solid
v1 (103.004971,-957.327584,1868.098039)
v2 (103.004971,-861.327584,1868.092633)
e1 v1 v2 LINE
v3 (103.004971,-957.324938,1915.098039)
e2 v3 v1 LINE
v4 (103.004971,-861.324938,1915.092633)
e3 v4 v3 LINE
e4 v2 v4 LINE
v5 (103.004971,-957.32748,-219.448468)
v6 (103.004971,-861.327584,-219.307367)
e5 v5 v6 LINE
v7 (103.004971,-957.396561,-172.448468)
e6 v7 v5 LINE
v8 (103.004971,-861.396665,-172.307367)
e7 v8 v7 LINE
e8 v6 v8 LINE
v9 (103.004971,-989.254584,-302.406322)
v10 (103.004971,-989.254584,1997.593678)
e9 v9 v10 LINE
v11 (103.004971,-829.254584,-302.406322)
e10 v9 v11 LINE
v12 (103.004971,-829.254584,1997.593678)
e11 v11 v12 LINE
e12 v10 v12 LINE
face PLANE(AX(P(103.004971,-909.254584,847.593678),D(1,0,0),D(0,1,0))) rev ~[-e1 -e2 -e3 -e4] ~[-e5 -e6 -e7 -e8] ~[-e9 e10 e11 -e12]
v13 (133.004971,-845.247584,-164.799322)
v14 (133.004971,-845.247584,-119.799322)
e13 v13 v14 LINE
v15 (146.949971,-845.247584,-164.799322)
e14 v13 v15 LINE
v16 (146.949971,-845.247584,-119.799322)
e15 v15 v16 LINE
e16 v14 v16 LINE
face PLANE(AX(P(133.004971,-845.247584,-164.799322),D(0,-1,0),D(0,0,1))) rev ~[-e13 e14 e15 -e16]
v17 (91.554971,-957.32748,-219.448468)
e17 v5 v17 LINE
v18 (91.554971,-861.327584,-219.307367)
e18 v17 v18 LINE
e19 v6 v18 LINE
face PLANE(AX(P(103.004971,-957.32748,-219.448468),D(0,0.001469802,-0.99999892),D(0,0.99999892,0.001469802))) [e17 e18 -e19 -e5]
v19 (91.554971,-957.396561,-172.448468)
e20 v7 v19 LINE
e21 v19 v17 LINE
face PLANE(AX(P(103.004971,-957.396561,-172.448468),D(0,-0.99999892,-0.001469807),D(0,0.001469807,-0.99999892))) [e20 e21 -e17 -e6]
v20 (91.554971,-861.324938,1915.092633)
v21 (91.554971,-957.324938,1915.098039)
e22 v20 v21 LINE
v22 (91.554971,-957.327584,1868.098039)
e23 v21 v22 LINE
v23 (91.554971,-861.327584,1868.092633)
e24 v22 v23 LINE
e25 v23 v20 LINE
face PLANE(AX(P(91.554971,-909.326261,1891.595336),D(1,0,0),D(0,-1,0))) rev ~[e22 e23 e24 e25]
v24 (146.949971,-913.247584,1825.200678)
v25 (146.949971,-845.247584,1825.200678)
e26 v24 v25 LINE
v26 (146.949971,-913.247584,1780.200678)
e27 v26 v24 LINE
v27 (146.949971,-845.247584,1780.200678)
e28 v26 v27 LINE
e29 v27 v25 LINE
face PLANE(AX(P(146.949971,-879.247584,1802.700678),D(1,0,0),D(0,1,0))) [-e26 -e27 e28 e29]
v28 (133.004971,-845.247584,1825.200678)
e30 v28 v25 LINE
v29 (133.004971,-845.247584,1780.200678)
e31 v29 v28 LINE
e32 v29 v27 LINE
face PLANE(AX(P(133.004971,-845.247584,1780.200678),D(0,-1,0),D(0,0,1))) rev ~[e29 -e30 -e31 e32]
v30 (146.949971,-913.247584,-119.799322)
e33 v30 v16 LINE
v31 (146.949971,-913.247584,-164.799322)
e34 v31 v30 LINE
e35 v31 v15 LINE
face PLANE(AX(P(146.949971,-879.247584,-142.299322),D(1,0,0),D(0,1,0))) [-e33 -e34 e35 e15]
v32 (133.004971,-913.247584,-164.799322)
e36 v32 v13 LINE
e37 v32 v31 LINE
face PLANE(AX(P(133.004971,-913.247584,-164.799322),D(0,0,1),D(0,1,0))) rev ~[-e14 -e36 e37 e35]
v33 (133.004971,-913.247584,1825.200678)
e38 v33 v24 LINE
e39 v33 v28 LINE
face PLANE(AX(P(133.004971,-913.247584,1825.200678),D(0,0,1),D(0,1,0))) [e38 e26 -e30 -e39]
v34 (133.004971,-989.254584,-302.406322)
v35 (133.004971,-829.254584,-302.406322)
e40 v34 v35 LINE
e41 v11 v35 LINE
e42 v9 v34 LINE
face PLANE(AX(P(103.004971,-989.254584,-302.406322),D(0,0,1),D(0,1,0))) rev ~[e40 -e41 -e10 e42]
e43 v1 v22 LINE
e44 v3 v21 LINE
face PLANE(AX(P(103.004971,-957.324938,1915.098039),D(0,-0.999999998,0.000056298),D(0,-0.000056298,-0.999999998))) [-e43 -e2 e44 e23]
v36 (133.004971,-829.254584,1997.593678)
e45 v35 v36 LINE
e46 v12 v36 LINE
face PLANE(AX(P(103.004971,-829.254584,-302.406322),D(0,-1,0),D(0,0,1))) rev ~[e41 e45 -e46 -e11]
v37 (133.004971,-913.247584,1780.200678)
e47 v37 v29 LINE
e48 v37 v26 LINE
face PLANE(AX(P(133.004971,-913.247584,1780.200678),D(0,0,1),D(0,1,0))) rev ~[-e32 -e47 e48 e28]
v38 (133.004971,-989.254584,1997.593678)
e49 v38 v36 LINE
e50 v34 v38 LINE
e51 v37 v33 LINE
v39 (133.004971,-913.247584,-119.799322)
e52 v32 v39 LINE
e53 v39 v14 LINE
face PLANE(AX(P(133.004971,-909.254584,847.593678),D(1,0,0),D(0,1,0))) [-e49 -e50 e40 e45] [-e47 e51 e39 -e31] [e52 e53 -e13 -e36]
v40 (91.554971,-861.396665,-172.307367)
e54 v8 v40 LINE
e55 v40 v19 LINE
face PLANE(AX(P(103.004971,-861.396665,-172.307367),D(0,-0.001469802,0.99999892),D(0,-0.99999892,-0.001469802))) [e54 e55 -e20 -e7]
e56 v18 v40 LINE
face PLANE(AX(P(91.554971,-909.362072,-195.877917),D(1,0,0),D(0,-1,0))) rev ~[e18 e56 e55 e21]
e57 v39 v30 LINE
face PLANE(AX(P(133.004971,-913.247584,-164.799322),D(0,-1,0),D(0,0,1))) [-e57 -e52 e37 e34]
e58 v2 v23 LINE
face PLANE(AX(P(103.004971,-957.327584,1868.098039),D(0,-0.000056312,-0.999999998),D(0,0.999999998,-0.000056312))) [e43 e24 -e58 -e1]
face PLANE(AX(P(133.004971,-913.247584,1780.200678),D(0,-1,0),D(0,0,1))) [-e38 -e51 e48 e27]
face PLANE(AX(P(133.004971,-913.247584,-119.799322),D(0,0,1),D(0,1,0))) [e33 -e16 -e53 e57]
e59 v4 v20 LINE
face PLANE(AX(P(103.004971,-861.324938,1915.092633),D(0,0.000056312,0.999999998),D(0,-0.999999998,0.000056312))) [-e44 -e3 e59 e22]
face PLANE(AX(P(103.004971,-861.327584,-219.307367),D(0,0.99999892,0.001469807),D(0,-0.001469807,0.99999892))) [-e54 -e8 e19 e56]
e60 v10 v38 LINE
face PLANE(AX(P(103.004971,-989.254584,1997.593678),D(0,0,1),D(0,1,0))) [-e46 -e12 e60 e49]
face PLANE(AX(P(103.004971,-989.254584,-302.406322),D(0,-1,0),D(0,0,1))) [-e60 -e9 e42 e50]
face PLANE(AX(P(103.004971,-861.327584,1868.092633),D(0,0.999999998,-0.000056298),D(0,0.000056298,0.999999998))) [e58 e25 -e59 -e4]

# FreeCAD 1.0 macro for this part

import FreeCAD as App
import Part
import Sketcher

V = App.Vector
Q = App.Units.Quantity

doc = App.newDocument("Part")
body = doc.addObject("PartDesign::Body", "Body")

# Sketch on YZ plane
sketch1 = body.newObject("Sketcher::SketchObject", "Sketch")
sketch1.AttachmentSupport = (doc.getObject("YZ_Plane"), [""])
sketch1.MapMode = "FlatFace"
sketch1.addGeometry(Part.LineSegment(V(-991, 1981, 0), V(-991, -319, 0)), False)
sketch1.addGeometry(Part.LineSegment(V(-991, -319, 0), V(-831, -319, 0)), False)
sketch1.addGeometry(Part.LineSegment(V(-831, -319, 0), V(-831, 1981, 0)), False)
sketch1.addGeometry(Part.LineSegment(V(-831, 1981, 0), V(-991, 1981, 0)), False)
sketch1.addConstraint(Sketcher.Constraint("Coincident", 0, 2, 1, 1))
sketch1.addConstraint(Sketcher.Constraint("Coincident", 1, 2, 2, 1))
sketch1.addConstraint(Sketcher.Constraint("Coincident", 2, 2, 3, 1))
sketch1.addConstraint(Sketcher.Constraint("Coincident", 3, 2, 0, 1))
sketch1.addConstraint(Sketcher.Constraint("Vertical", 0))
sketch1.addConstraint(Sketcher.Constraint("Horizontal", 1))
sketch1.addConstraint(Sketcher.Constraint("Vertical", 2))
sketch1.addConstraint(Sketcher.Constraint("Horizontal", 3))
sketch1.addConstraint(Sketcher.Constraint("DistanceX", 1, 1, 1, 2, Q("160 mm")))
sketch1.addConstraint(Sketcher.Constraint("DistanceY", 0, 2, 0, 1, Q("2300 mm")))
sketch1.addConstraint(Sketcher.Constraint("DistanceX", 0, 2, -1, 1, Q("991.017 mm")))
sketch1.addConstraint(Sketcher.Constraint("DistanceY", 0, 2, -1, 1, Q("319.152 mm")))
pad1 = body.newObject("PartDesign::Pad", "Pad")
pad1.Profile = sketch1
pad1.Length = 30

# Sketch on YZ plane
sketch2 = body.newObject("Sketcher::SketchObject", "Sketch001")
sketch2.AttachmentSupport = (doc.getObject("YZ_Plane"), [""])
sketch2.MapMode = "FlatFace"
sketch2.addGeometry(Part.LineSegment(V(-863, -236, 0), V(-959, -236, 0)), False)
sketch2.addGeometry(Part.LineSegment(V(-959, -236, 0), V(-959, -189, 0)), False)
sketch2.addGeometry(Part.LineSegment(V(-959, -189, 0), V(-863, -189, 0)), False)
sketch2.addGeometry(Part.LineSegment(V(-863, -189, 0), V(-863, -236, 0)), False)
sketch2.addGeometry(Part.LineSegment(V(-863, 1851, 0), V(-959, 1851, 0)), False)
sketch2.addGeometry(Part.LineSegment(V(-959, 1851, 0), V(-959, 1898, 0)), False)
sketch2.addGeometry(Part.LineSegment(V(-959, 1898, 0), V(-863, 1898, 0)), False)
sketch2.addGeometry(Part.LineSegment(V(-863, 1898, 0), V(-863, 1851, 0)), False)
sketch2.addConstraint(Sketcher.Constraint("Coincident", 0, 2, 1, 1))
sketch2.addConstraint(Sketcher.Constraint("Coincident", 1, 2, 2, 1))
sketch2.addConstraint(Sketcher.Constraint("Coincident", 2, 2, 3, 1))
sketch2.addConstraint(Sketcher.Constraint("Coincident", 3, 2, 0, 1))
sketch2.addConstraint(Sketcher.Constraint("Coincident", 4, 2, 5, 1))
sketch2.addConstraint(Sketcher.Constraint("Coincident", 5, 2, 6, 1))
sketch2.addConstraint(Sketcher.Constraint("Coincident", 6, 2, 7, 1))
sketch2.addConstraint(Sketcher.Constraint("Coincident", 7, 2, 4, 1))
sketch2.addConstraint(Sketcher.Constraint("Perpendicular", 0, 1))
sketch2.addConstraint(Sketcher.Constraint("Perpendicular", 1, 2))
sketch2.addConstraint(Sketcher.Constraint("Perpendicular", 2, 3))
sketch2.addConstraint(Sketcher.Constraint("Perpendicular", 4, 5))
sketch2.addConstraint(Sketcher.Constraint("Perpendicular", 5, 6))
sketch2.addConstraint(Sketcher.Constraint("Perpendicular", 6, 7))
sketch2.addConstraint(Sketcher.Constraint("Vertical", 3, 2, 7, 2))
sketch2.addConstraint(Sketcher.Constraint("Equal", 2, 4))
sketch2.addConstraint(Sketcher.Constraint("Distance", 0, Q("96 mm")))
sketch2.addConstraint(Sketcher.Constraint("Distance", 5, Q("47 mm")))
sketch2.addConstraint(Sketcher.Constraint("DistanceY", 0, 2, 1, 2, Q("47 mm")))
sketch2.addConstraint(Sketcher.Constraint("DistanceY", 2, 2, 6, 2, Q("2087.4 mm")))
sketch2.addConstraint(Sketcher.Constraint("DistanceX", 3, 2, -1, 1, Q("863.09 mm")))
sketch2.addConstraint(Sketcher.Constraint("DistanceY", 1, 2, 2, 2, Q("0.141101 mm")))
sketch2.addConstraint(Sketcher.Constraint("DistanceY", -1, 1, 4, 2, Q("1851.352361 mm")))
sketch2.addConstraint(Sketcher.Constraint("DistanceX", 0, 2, 5, 2, Q("0.002542 mm")))
pad2 = body.newObject("PartDesign::Pad", "Pad001")
pad2.Profile = sketch2
pad2.Length = 11.45
pad2.Reversed = True

# Sketch on YZ plane
sketch3 = body.newObject("Sketcher::SketchObject", "Sketch002")
sketch3.AttachmentSupport = (doc.getObject("YZ_Plane"), [""])
sketch3.MapMode = "FlatFace"
sketch3.AttachmentOffset = App.Placement(V(0, 0, 30), App.Rotation())
sketch3.addGeometry(Part.LineSegment(V(-915, -137, 0), V(-915, -182, 0)), False)
sketch3.addGeometry(Part.LineSegment(V(-915, -182, 0), V(-847, -182, 0)), False)
sketch3.addGeometry(Part.LineSegment(V(-847, -182, 0), V(-847, -137, 0)), False)
sketch3.addGeometry(Part.LineSegment(V(-847, -137, 0), V(-915, -137, 0)), False)
sketch3.addGeometry(Part.LineSegment(V(-915, 1808, 0), V(-915, 1763, 0)), False)
sketch3.addGeometry(Part.LineSegment(V(-915, 1763, 0), V(-847, 1763, 0)), False)
sketch3.addGeometry(Part.LineSegment(V(-847, 1763, 0), V(-847, 1808, 0)), False)
sketch3.addGeometry(Part.LineSegment(V(-847, 1808, 0), V(-915, 1808, 0)), False)
sketch3.addConstraint(Sketcher.Constraint("Coincident", 0, 2, 1, 1))
sketch3.addConstraint(Sketcher.Constraint("Coincident", 1, 2, 2, 1))
sketch3.addConstraint(Sketcher.Constraint("Coincident", 2, 2, 3, 1))
sketch3.addConstraint(Sketcher.Constraint("Coincident", 3, 2, 0, 1))
sketch3.addConstraint(Sketcher.Constraint("Coincident", 4, 2, 5, 1))
sketch3.addConstraint(Sketcher.Constraint("Coincident", 5, 2, 6, 1))
sketch3.addConstraint(Sketcher.Constraint("Coincident", 6, 2, 7, 1))
sketch3.addConstraint(Sketcher.Constraint("Coincident", 7, 2, 4, 1))
sketch3.addConstraint(Sketcher.Constraint("Vertical", 0))
sketch3.addConstraint(Sketcher.Constraint("Horizontal", 1))
sketch3.addConstraint(Sketcher.Constraint("Vertical", 2))
sketch3.addConstraint(Sketcher.Constraint("Horizontal", 3))
sketch3.addConstraint(Sketcher.Constraint("Vertical", 4))
sketch3.addConstraint(Sketcher.Constraint("Horizontal", 5))
sketch3.addConstraint(Sketcher.Constraint("Vertical", 6))
sketch3.addConstraint(Sketcher.Constraint("Horizontal", 7))
sketch3.addConstraint(Sketcher.Constraint("Vertical", 3, 2, 4, 2))
sketch3.addConstraint(Sketcher.Constraint("Vertical", 2, 2, 5, 2))
sketch3.addConstraint(Sketcher.Constraint("Equal", 2, 4))
sketch3.addConstraint(Sketcher.Constraint("DistanceX", 1, 1, 1, 2, Q("68 mm")))
sketch3.addConstraint(Sketcher.Constraint("DistanceY", 0, 2, 0, 1, Q("45 mm")))
sketch3.addConstraint(Sketcher.Constraint("DistanceY", 3, 2, 4, 2, Q("1900 mm")))
sketch3.addConstraint(Sketcher.Constraint("DistanceX", 0, 2, -1, 1, Q("915.01 mm")))
sketch3.addConstraint(Sketcher.Constraint("DistanceY", 0, 2, -1, 1, Q("181.545 mm")))
pad3 = body.newObject("PartDesign::Pad", "Pad002")
pad3.Profile = sketch3
pad3.Length = 13.945
body2 = doc.addObject("PartDesign::Body", "Body001")
doc.recompute()

body.Placement = App.Placement(V(103.004971, 1.762416, 16.745678), App.Rotation(V(0, 0, 1), 0))
boolean = body2.newObject("PartDesign::Boolean", "Boolean")
boolean.Type = "Fuse"
boolean.addObjects([body])

doc.recompute()
